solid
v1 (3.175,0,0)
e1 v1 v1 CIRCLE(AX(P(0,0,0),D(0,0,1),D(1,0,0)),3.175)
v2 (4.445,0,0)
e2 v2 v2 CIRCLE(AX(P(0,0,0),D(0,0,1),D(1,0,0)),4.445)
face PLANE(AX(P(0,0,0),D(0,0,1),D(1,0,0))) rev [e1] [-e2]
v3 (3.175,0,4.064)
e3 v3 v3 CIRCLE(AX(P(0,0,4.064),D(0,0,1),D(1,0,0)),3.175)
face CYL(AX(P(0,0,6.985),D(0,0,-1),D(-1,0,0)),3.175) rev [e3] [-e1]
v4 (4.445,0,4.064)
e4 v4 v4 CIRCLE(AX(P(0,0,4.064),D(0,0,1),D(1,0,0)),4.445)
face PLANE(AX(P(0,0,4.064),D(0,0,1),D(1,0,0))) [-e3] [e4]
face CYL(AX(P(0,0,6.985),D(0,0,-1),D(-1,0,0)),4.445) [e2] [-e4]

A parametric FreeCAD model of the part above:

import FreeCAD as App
import Part
import Sketcher
from FreeCAD import Vector
Q = App.Units.Quantity

doc = App.newDocument("Part")
body = doc.addObject("PartDesign::Body", "Body")

# Sketch on XY plane
sketch1 = body.newObject("Sketcher::SketchObject", "Sketch")
sketch1.AttachmentSupport = (doc.getObject("XY_Plane"), [""])
sketch1.MapMode = "FlatFace"
sketch1.addGeometry(Part.Circle(Vector(0, 0, 0), Vector(0, 0, 1), 4.445), False)
sketch1.addGeometry(Part.Circle(Vector(0, 0, 0), Vector(0, 0, 1), 3.175), False)
sketch1.addConstraint(Sketcher.Constraint("Coincident", 0, 3, -1, 1))
sketch1.addConstraint(Sketcher.Constraint("Coincident", 1, 3, -1, 1))
sketch1.addConstraint(Sketcher.Constraint("Diameter", 0, Q("0.35 in")))
sketch1.addConstraint(Sketcher.Constraint("Diameter", 1, Q("0.25 in")))
pad1 = body.newObject("PartDesign::Pad", "Pad")
pad1.Profile = sketch1
pad1.Length = Q("0.275 in")

# Sketch on XY plane
sketch2 = body.newObject("Sketcher::SketchObject", "Sketch001")
sketch2.AttachmentSupport = (doc.getObject("XY_Plane"), [""])
sketch2.MapMode = "FlatFace"
sketch2.AttachmentOffset = App.Placement(Vector(0, 0, 0.16 * 25.4), App.Rotation())
sketch2.addGeometry(Part.Circle(Vector(0, 0, 0), Vector(0, 0, 1), 4.445), False)
sketch2.addConstraint(Sketcher.Constraint("Coincident", 0, 3, -1, 1))
sketch2.addConstraint(Sketcher.Constraint("Diameter", 0, Q("0.35 in")))
pocket1 = body.newObject("PartDesign::Pocket", "Pocket")
pocket1.Profile = sketch2
pocket1.Length = Q("0.115 in")
pocket1.Reversed = True

doc.recompute()
